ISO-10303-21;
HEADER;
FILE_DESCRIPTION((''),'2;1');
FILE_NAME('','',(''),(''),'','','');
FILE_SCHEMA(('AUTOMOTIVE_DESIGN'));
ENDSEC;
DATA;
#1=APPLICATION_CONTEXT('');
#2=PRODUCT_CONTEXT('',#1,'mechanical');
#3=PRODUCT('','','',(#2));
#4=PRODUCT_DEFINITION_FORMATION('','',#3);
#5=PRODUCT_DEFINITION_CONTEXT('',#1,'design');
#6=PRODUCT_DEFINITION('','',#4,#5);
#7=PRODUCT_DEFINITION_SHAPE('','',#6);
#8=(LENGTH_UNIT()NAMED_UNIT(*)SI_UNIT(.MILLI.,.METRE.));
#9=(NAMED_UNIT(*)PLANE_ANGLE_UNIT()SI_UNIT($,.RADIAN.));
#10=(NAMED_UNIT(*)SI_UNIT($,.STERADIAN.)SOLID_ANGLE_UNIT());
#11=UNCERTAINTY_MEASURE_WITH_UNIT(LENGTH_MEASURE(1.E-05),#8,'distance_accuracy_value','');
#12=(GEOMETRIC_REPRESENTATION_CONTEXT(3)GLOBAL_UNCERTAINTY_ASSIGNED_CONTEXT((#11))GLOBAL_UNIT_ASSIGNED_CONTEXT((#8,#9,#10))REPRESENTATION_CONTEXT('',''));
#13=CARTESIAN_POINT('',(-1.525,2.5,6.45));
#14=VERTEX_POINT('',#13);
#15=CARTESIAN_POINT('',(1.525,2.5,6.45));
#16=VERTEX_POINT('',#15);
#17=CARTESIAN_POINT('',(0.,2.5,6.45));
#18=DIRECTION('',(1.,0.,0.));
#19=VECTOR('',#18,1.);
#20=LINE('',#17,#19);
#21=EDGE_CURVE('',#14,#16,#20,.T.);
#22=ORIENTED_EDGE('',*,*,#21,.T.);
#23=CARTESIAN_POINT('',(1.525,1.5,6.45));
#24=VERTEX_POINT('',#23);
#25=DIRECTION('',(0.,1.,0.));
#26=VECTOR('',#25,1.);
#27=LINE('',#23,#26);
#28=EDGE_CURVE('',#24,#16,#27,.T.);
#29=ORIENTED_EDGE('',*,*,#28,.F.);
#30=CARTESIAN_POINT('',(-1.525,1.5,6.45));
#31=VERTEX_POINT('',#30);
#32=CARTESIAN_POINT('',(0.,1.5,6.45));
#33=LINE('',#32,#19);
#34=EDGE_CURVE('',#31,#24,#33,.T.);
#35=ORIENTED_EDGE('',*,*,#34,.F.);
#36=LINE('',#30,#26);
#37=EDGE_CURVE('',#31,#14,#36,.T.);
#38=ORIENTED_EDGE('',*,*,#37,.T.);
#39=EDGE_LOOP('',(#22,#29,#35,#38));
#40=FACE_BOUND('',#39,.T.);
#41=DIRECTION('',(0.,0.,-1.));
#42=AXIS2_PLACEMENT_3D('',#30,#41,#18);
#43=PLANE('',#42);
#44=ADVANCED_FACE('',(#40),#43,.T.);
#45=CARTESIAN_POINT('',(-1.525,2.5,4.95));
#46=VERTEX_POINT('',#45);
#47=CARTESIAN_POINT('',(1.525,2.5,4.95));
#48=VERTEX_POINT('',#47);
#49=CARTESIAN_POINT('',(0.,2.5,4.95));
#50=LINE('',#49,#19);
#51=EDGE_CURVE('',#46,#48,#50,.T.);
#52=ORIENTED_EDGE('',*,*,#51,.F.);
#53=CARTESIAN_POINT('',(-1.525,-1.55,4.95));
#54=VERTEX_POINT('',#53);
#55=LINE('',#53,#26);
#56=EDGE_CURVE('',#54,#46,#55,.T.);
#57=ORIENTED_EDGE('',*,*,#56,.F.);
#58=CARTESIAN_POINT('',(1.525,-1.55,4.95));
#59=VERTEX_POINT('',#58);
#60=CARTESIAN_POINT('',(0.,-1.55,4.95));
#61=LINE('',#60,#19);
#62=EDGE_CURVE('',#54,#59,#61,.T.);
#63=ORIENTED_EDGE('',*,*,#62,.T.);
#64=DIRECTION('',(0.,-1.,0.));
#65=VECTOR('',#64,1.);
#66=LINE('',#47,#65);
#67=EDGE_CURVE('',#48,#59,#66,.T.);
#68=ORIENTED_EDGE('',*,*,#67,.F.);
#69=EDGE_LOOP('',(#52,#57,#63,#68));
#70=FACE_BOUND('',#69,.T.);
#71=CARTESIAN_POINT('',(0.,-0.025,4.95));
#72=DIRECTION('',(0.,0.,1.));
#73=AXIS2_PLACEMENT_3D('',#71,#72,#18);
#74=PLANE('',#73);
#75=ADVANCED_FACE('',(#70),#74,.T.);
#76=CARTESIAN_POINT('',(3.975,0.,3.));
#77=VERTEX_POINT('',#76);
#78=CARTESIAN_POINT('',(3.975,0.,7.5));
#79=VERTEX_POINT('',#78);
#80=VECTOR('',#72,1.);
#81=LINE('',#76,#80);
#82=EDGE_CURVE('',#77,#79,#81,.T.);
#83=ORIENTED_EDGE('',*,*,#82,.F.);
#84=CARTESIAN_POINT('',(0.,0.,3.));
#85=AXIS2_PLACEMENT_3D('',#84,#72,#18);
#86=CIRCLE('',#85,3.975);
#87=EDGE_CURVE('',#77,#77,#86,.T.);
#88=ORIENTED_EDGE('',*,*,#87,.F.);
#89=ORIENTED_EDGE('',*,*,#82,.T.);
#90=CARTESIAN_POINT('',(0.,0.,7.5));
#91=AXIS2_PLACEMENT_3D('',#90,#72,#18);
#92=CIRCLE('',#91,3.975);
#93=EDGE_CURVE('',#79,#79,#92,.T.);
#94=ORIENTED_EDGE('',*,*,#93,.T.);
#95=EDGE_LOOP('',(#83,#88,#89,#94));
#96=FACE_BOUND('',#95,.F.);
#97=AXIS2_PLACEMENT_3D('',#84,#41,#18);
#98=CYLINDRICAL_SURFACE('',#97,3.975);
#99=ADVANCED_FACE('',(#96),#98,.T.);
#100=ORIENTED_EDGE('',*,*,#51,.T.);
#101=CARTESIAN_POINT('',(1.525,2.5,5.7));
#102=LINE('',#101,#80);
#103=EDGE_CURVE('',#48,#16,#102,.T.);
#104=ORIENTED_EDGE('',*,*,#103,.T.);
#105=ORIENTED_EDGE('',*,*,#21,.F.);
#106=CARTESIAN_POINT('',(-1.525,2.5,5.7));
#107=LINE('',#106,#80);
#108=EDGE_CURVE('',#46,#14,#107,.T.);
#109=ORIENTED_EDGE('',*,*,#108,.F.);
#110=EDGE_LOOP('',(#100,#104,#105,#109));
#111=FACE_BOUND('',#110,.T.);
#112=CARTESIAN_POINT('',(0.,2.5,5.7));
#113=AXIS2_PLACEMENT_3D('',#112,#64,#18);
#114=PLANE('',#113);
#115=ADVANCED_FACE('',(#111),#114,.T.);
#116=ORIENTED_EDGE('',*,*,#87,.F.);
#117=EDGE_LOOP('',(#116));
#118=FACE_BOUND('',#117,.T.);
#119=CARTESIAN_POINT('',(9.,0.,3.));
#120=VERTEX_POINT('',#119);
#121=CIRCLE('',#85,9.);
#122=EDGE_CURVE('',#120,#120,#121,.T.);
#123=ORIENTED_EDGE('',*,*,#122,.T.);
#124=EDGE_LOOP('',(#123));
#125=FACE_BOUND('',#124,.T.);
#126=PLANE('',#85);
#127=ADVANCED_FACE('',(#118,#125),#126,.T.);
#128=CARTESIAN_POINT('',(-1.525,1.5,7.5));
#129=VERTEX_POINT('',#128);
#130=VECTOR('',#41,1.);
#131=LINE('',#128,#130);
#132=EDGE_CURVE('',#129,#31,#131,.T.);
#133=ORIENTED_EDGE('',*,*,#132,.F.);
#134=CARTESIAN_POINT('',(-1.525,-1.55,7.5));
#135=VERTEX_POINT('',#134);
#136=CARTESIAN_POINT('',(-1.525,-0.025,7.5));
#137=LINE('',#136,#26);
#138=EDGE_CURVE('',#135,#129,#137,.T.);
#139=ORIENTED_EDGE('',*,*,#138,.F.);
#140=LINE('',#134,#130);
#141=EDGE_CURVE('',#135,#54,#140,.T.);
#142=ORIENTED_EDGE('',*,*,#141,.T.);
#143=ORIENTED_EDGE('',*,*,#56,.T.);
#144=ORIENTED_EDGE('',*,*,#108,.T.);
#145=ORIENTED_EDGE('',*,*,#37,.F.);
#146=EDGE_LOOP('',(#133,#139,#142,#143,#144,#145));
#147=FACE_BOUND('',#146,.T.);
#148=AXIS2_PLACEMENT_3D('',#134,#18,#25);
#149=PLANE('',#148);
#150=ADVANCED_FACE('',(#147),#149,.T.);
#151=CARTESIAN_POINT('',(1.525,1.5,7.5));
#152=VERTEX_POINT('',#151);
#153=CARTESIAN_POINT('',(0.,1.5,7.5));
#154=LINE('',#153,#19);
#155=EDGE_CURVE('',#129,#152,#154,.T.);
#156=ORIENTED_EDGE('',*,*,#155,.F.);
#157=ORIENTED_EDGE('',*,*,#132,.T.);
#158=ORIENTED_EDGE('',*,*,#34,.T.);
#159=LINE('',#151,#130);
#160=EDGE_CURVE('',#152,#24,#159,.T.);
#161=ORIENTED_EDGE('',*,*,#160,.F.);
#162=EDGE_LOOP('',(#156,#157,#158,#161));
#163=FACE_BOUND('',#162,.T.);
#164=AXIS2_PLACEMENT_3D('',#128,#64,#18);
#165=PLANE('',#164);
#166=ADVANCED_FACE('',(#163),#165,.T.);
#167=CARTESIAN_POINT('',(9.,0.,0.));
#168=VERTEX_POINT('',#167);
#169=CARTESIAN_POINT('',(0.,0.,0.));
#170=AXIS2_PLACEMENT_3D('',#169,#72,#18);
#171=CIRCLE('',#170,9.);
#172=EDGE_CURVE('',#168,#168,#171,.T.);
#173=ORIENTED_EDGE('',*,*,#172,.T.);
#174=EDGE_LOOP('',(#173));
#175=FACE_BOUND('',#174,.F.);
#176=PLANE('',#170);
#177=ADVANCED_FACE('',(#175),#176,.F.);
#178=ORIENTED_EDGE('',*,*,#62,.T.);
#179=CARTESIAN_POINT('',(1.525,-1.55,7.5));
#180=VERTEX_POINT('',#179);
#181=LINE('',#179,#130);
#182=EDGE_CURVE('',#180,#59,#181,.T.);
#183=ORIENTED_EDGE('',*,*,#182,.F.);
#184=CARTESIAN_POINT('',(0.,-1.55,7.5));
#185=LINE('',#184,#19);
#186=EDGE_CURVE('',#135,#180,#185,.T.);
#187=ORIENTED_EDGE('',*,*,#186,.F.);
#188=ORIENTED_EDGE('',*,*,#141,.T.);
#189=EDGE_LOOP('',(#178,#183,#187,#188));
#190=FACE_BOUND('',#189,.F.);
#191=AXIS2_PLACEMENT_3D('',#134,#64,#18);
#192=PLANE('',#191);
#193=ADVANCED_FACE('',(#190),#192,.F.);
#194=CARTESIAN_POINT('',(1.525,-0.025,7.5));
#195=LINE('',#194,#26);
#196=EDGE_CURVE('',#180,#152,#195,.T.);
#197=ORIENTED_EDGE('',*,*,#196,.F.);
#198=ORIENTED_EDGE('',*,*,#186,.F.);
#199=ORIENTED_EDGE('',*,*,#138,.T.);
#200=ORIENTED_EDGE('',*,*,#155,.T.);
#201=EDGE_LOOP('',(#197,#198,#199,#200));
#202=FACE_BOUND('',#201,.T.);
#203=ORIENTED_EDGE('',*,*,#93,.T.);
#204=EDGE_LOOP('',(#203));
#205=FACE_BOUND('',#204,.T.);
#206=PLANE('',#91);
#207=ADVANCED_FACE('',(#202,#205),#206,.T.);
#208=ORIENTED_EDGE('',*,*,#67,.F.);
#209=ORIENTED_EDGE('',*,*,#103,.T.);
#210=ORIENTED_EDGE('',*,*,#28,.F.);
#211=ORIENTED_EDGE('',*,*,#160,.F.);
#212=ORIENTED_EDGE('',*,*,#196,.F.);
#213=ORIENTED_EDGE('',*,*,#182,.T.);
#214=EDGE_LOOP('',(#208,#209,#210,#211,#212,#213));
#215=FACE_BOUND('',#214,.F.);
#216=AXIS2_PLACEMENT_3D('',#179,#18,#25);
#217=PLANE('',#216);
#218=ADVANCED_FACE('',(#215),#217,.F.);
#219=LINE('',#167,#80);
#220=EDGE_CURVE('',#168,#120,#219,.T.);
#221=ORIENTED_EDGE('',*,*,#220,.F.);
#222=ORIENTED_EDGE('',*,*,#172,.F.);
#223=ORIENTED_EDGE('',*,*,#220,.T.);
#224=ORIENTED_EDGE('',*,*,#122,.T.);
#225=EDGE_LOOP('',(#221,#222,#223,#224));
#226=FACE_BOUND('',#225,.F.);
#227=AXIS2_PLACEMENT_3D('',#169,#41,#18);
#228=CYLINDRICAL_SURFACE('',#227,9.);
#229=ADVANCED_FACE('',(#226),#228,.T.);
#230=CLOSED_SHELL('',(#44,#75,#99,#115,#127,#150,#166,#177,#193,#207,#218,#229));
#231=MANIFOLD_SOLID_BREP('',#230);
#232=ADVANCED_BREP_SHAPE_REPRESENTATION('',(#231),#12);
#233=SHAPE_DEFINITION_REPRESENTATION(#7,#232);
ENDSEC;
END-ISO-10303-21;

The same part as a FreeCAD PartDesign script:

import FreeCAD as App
import Part
import Sketcher

V = App.Vector
Q = App.Units.Quantity


def add_polygon(sketch, points):
    """Adds a closed chain of lines whose ends are joined by coincident constraints."""
    first, n = sketch.GeometryCount, len(points)
    for a, b in zip(points, points[1:] + points[:1]):
        sketch.addGeometry(Part.LineSegment(App.Vector(*a, 0), App.Vector(*b, 0)), False)
    for i in range(n):
        sketch.addConstraint(Sketcher.Constraint("Coincident", first + i, 2, first + (i + 1) % n, 1))

doc = App.newDocument("Part")
body = doc.addObject("PartDesign::Body", "Body")

# Sketch on XY plane
sketch1 = doc.addObject("Sketcher::SketchObject", "Sketch")
body.addObject(sketch1)
sketch1.AttachmentSupport = (doc.XY_Plane, [""])
sketch1.MapMode = "FlatFace"
sketch1.addGeometry(Part.Circle(V(0, 0, 0), V(0, 0, 1), 9), False)
sketch1.addConstraint([
    Sketcher.Constraint("Coincident", 0, 3, -1, 1),
    Sketcher.Constraint("Diameter", 0, Q("18 mm")),
])
pad1 = doc.addObject("PartDesign::Pad", "Pad")
body.addObject(pad1)
pad1.Profile = sketch1
pad1.Length = 3

# Sketch on XY plane
sketch2 = doc.addObject("Sketcher::SketchObject", "Sketch001")
body.addObject(sketch2)
sketch2.AttachmentSupport = (doc.XY_Plane, [""])
sketch2.MapMode = "FlatFace"
sketch2.AttachmentOffset = App.Placement(V(0, 0, 3), App.Rotation())
sketch2.addGeometry(Part.Circle(V(0, 0, 0), V(0, 0, 1), 4), False)
sketch2.addConstraint([
    Sketcher.Constraint("Coincident", 0, 3, -1, 1),
    Sketcher.Constraint("Diameter", 0, Q("7.95 mm")),
])
pad2 = doc.addObject("PartDesign::Pad", "Pad001")
body.addObject(pad2)
pad2.Profile = sketch2
pad2.Length = 4.5

# Sketch on XY plane
sketch3 = doc.addObject("Sketcher::SketchObject", "Sketch002")
body.addObject(sketch3)
sketch3.AttachmentSupport = (doc.XY_Plane, [""])
sketch3.MapMode = "FlatFace"
sketch3.AttachmentOffset = App.Placement(V(0, 0, 7.5), App.Rotation())
add_polygon(sketch3, [(-1.5, 1.5), (-1.5, -1.6), (1.5, -1.6), (1.5, 1.5)])  # lines 0-3
sketch3.addConstraint([
    Sketcher.Constraint("Vertical", 0),
    Sketcher.Constraint("Horizontal", 1),
    Sketcher.Constraint("Vertical", 2),
    Sketcher.Constraint("Horizontal", 3),
    Sketcher.Constraint("Equal", 3, 0),
    Sketcher.Constraint("DistanceX", 1, 1, 1, 2, Q("3.05 mm")),
    Sketcher.Constraint("DistanceY", -1, 1, 2, 2, Q("1.5 mm")),
    Sketcher.Constraint("DistanceX", 0, 2, -1, 1, Q("1.525 mm")),
])
pocket1 = doc.addObject("PartDesign::Pocket", "Pocket")
body.addObject(pocket1)
pocket1.Profile = sketch3
pocket1.Length = 2.55

# Sketch on XZ plane
sketch4 = doc.addObject("Sketcher::SketchObject", "Sketch003")
body.addObject(sketch4)
sketch4.AttachmentSupport = (doc.XZ_Plane, [""])
sketch4.MapMode = "FlatFace"
sketch4.AttachmentOffset = App.Placement(V(0, 0, -1.5), App.Rotation())
add_polygon(sketch4, [(-1.5, 6.5), (-1.5, 5), (1.5, 5), (1.5, 6.5)])  # lines 0-3
sketch4.addConstraint([
    Sketcher.Constraint("Vertical", 0),
    Sketcher.Constraint("Horizontal", 1),
    Sketcher.Constraint("Vertical", 2),
    Sketcher.Constraint("Horizontal", 3),
    Sketcher.Constraint("DistanceY", 0, 2, 0, 1, Q("1.5 mm")),
    Sketcher.Constraint("DistanceX", 1, 1, 1, 2, Q("3.05 mm")),
    Sketcher.Constraint("DistanceY", -1, 1, 0, 2, Q("4.95 mm")),
    Sketcher.Constraint("DistanceX", 0, 2, -1, 1, Q("1.525 mm")),
])
pocket2 = doc.addObject("PartDesign::Pocket", "Pocket001")
body.addObject(pocket2)
pocket2.Profile = sketch4
pocket2.Length = 1

doc.recompute()
